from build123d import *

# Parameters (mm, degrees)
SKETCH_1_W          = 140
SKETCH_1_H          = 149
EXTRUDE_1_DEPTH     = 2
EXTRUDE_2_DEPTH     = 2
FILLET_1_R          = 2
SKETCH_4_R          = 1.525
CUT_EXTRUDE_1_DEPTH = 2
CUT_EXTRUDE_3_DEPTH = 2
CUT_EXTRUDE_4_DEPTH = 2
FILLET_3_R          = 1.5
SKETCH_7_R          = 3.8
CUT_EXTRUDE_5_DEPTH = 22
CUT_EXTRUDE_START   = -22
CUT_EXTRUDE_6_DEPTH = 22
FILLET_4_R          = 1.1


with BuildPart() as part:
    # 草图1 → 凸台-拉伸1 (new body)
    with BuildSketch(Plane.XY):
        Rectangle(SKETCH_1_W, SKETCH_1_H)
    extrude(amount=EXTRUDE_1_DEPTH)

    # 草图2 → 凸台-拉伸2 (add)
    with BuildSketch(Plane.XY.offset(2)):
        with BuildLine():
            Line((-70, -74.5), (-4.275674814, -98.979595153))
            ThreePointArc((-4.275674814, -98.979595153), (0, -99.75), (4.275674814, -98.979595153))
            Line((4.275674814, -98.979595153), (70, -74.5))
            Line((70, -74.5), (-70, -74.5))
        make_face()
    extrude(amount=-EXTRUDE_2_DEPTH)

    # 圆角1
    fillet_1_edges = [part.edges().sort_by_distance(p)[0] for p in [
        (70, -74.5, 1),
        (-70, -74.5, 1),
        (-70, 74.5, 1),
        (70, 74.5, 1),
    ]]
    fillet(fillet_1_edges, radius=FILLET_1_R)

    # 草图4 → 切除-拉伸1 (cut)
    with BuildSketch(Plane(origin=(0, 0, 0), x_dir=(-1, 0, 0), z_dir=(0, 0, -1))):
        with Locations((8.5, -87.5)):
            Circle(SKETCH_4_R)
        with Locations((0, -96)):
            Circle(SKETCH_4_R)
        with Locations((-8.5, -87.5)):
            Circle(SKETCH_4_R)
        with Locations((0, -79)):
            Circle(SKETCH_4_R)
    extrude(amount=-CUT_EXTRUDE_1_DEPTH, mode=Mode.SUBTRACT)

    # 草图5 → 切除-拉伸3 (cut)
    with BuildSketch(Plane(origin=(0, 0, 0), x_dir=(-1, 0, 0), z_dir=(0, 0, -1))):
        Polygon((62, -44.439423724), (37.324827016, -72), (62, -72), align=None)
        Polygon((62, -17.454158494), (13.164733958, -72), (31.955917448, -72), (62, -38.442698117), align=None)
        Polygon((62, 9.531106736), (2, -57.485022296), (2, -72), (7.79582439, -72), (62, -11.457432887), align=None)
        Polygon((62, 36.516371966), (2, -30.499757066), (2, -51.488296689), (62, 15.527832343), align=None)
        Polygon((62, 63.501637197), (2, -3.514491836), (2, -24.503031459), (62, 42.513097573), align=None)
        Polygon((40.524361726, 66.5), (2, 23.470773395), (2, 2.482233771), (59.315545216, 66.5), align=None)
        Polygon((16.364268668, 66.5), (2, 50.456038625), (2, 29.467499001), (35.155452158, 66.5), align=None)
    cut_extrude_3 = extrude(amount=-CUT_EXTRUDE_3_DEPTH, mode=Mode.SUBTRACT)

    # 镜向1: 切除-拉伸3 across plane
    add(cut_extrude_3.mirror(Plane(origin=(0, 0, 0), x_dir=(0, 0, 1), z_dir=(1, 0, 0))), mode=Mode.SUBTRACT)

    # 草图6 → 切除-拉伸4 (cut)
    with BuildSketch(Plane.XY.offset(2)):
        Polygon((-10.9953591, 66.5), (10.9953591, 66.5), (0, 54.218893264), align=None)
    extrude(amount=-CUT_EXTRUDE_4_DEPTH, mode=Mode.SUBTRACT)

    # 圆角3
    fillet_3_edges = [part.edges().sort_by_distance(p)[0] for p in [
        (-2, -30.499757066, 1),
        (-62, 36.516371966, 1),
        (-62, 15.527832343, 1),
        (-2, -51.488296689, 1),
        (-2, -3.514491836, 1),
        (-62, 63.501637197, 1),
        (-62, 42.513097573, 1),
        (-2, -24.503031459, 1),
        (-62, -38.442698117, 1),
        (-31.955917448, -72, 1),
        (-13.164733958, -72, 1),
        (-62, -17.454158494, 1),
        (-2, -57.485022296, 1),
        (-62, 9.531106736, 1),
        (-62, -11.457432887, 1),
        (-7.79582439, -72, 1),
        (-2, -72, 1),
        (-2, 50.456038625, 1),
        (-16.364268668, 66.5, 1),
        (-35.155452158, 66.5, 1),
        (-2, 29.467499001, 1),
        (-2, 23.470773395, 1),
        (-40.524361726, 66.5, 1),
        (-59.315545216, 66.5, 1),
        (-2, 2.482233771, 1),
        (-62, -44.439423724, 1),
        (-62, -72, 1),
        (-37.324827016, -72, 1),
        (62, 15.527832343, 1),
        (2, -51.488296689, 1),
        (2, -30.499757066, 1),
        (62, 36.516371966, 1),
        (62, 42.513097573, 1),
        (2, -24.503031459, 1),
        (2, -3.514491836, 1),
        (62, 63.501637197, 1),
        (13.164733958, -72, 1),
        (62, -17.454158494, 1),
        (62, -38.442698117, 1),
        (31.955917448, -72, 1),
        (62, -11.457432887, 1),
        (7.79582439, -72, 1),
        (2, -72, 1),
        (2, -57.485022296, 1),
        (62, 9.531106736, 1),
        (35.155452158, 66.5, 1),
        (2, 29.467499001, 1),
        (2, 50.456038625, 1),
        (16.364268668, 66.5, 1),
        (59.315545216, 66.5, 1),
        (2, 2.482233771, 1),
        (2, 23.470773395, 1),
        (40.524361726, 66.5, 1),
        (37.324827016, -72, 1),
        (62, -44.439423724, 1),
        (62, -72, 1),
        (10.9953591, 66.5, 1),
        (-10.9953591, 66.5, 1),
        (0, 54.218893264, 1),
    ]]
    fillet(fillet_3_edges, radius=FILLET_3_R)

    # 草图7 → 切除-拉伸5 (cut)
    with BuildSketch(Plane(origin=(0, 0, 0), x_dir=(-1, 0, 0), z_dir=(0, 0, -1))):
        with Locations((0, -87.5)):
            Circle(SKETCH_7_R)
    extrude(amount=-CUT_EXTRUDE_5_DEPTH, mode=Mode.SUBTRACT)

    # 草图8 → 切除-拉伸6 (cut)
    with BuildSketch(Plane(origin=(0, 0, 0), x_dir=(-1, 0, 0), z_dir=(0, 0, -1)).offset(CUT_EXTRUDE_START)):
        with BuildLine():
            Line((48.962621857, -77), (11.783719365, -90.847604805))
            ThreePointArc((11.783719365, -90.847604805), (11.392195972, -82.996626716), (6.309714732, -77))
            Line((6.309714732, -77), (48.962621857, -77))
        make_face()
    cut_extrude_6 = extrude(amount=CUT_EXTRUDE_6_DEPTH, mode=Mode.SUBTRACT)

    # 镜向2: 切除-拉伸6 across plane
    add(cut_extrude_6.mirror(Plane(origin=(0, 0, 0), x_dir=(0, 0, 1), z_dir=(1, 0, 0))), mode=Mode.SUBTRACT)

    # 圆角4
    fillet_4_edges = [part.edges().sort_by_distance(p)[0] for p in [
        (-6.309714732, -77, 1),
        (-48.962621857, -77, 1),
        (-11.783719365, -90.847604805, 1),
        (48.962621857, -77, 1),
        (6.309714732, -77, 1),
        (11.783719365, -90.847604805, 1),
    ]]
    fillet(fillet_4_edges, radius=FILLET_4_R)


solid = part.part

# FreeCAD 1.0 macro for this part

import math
import FreeCAD as App
import Part
import Sketcher
Q = App.Units.Quantity


def edges_at(feature, points):
    """Names of the edges that pass closest to the given points."""
    edges = feature.Shape.Edges
    near = lambda p: min(range(len(edges)), key=lambda i: edges[i].distToShape(Part.Vertex(*p))[0])
    return sorted({f"Edge{near(p) + 1}" for p in points})

doc = App.newDocument("Part")
body = doc.addObject("PartDesign::Body", "Body")

# Sketch on XY plane
sketch1 = body.newObject("Sketcher::SketchObject", "Sketch")
sketch1.AttachmentSupport = (doc.getObject("XY_Plane"), [""])
sketch1.MapMode = "FlatFace"
sketch1.addGeometry(Part.LineSegment(App.Vector(-70, 74, 0), App.Vector(-70, -74, 0)), False)
sketch1.addGeometry(Part.LineSegment(App.Vector(-70, -74, 0), App.Vector(70, -74, 0)), False)
sketch1.addGeometry(Part.LineSegment(App.Vector(70, -74, 0), App.Vector(70, 74, 0)), False)
sketch1.addGeometry(Part.LineSegment(App.Vector(70, 74, 0), App.Vector(-70, 74, 0)), False)
sketch1.addConstraint(Sketcher.Constraint("Coincident", 0, 2, 1, 1))
sketch1.addConstraint(Sketcher.Constraint("Coincident", 1, 2, 2, 1))
sketch1.addConstraint(Sketcher.Constraint("Coincident", 2, 2, 3, 1))
sketch1.addConstraint(Sketcher.Constraint("Coincident", 3, 2, 0, 1))
sketch1.addConstraint(Sketcher.Constraint("Vertical", 0))
sketch1.addConstraint(Sketcher.Constraint("Horizontal", 1))
sketch1.addConstraint(Sketcher.Constraint("Vertical", 2))
sketch1.addConstraint(Sketcher.Constraint("Horizontal", 3))
sketch1.addConstraint(Sketcher.Constraint("Symmetric", 0, 2, 2, 2, -1, 1))
sketch1.addConstraint(Sketcher.Constraint("DistanceX", 1, 1, 1, 2, Q("140 mm")))
sketch1.addConstraint(Sketcher.Constraint("DistanceY", 0, 2, 0, 1, Q("149 mm")))
pad1 = body.newObject("PartDesign::Pad", "Pad")
pad1.Profile = sketch1
pad1.Length = 2

# Sketch on XY plane
sketch2 = body.newObject("Sketcher::SketchObject", "Sketch001")
sketch2.AttachmentSupport = (doc.getObject("XY_Plane"), [""])
sketch2.MapMode = "FlatFace"
sketch2.AttachmentOffset = App.Placement(App.Vector(0, 0, 2), App.Rotation())
sketch2.addGeometry(Part.LineSegment(App.Vector(-70, -74, 0), App.Vector(-4, -99, 0)), False)
sketch2.addGeometry(Part.ArcOfCircle(Part.Circle(App.Vector(0, -88, 0), App.Vector(0, 0, 1), 12), math.radians(-110), math.radians(-70)), False)
sketch2.addGeometry(Part.LineSegment(App.Vector(4, -99, 0), App.Vector(70, -74, 0)), False)
sketch2.addGeometry(Part.LineSegment(App.Vector(70, -74, 0), App.Vector(-70, -74, 0)), False)
sketch2.addConstraint(Sketcher.Constraint("Tangent", 0, 2, 1, 1))
sketch2.addConstraint(Sketcher.Constraint("Tangent", 1, 2, 2, 1))
sketch2.addConstraint(Sketcher.Constraint("Coincident", 2, 2, 3, 1))
sketch2.addConstraint(Sketcher.Constraint("Coincident", 3, 2, 0, 1))
sketch2.addConstraint(Sketcher.Constraint("Horizontal", 3))
sketch2.addConstraint(Sketcher.Constraint("Symmetric", 0, 2, 1, 2, -2))
sketch2.addConstraint(Sketcher.Constraint("DistanceX", 3, 2, 3, 1, Q("140 mm")))
sketch2.addConstraint(Sketcher.Constraint("Radius", 1, Q("12.25 mm")))
sketch2.addConstraint(Sketcher.Constraint("DistanceY", 1, 3, 2, 2, Q("13 mm")))
sketch2.addConstraint(Sketcher.Constraint("DistanceY", 1, 3, -1, 1, Q("87.5 mm")))
pad2 = body.newObject("PartDesign::Pad", "Pad001")
pad2.Profile = sketch2
pad2.Length = 2
pad2.Reversed = True
doc.recompute()

fillet = body.newObject("PartDesign::Fillet", "Fillet")
fillet.Base = (pad2, edges_at(pad2, [
    (70, -74.5, 1),
    (-70, -74.5, 1),
    (-70, 74.5, 1),
    (70, 74.5, 1),
]))
fillet.Radius = 2

# Sketch on XY plane
sketch3 = body.newObject("Sketcher::SketchObject", "Sketch002")
sketch3.AttachmentSupport = (doc.getObject("XY_Plane"), [""])
sketch3.MapMode = "FlatFace"
sketch3.addGeometry(Part.Circle(App.Vector(-8.5, -87.5, 0), App.Vector(0, 0, 1), 1.5), False)
sketch3.addGeometry(Part.Circle(App.Vector(0, -96, 0), App.Vector(0, 0, 1), 1.5), False)
sketch3.addGeometry(Part.Circle(App.Vector(8.5, -87.5, 0), App.Vector(0, 0, 1), 1.5), False)
sketch3.addGeometry(Part.Circle(App.Vector(0, -79, 0), App.Vector(0, 0, 1), 1.5), False)
sketch3.addConstraint(Sketcher.Constraint("Equal", 0, 1))
sketch3.addConstraint(Sketcher.Constraint("Equal", 1, 2))
sketch3.addConstraint(Sketcher.Constraint("Equal", 2, 3))
sketch3.addConstraint(Sketcher.Constraint("Symmetric", 0, 3, 2, 3, -2))
sketch3.addConstraint(Sketcher.Constraint("PointOnObject", 1, 3, -2))
sketch3.addConstraint(Sketcher.Constraint("PointOnObject", 3, 3, -2))
sketch3.addConstraint(Sketcher.Constraint("Diameter", 0, Q("3.05 mm")))
sketch3.addConstraint(Sketcher.Constraint("DistanceY", 1, 3, -1, 1, Q("96 mm")))
sketch3.addConstraint(Sketcher.Constraint("DistanceY", 3, 3, -1, 1, Q("79 mm")))
sketch3.addConstraint(Sketcher.Constraint("DistanceX", 0, 3, 2, 3, Q("17 mm")))
sketch3.addConstraint(Sketcher.Constraint("DistanceY", 0, 3, -1, 1, Q("87.5 mm")))
pocket1 = body.newObject("PartDesign::Pocket", "Pocket")
pocket1.Profile = sketch3
pocket1.Length = 2
pocket1.Reversed = True

# Sketch on XY plane
sketch4 = body.newObject("Sketcher::SketchObject", "Sketch003")
sketch4.AttachmentSupport = (doc.getObject("XY_Plane"), [""])
sketch4.MapMode = "FlatFace"
sketch4.addGeometry(Part.LineSegment(App.Vector(-62, -44, 0), App.Vector(-37, -72, 0)), False)
sketch4.addGeometry(Part.LineSegment(App.Vector(-37, -72, 0), App.Vector(-62, -72, 0)), False)
sketch4.addGeometry(Part.LineSegment(App.Vector(-62, -72, 0), App.Vector(-62, -44, 0)), False)
sketch4.addGeometry(Part.LineSegment(App.Vector(-62, -17, 0), App.Vector(-13, -72, 0)), False)
sketch4.addGeometry(Part.LineSegment(App.Vector(-13, -72, 0), App.Vector(-32, -72, 0)), False)
sketch4.addGeometry(Part.LineSegment(App.Vector(-32, -72, 0), App.Vector(-62, -38, 0)), False)
sketch4.addGeometry(Part.LineSegment(App.Vector(-62, -38, 0), App.Vector(-62, -17, 0)), False)
sketch4.addGeometry(Part.LineSegment(App.Vector(-62, 10, 0), App.Vector(-2, -57, 0)), False)
sketch4.addGeometry(Part.LineSegment(App.Vector(-2, -57, 0), App.Vector(-2, -72, 0)), False)
sketch4.addGeometry(Part.LineSegment(App.Vector(-2, -72, 0), App.Vector(-8, -72, 0)), False)
sketch4.addGeometry(Part.LineSegment(App.Vector(-8, -72, 0), App.Vector(-62, -11, 0)), False)
sketch4.addGeometry(Part.LineSegment(App.Vector(-62, -11, 0), App.Vector(-62, 10, 0)), False)
sketch4.addGeometry(Part.LineSegment(App.Vector(-62, 37, 0), App.Vector(-2, -30, 0)), False)
sketch4.addGeometry(Part.LineSegment(App.Vector(-2, -30, 0), App.Vector(-2, -51, 0)), False)
sketch4.addGeometry(Part.LineSegment(App.Vector(-2, -51, 0), App.Vector(-62, 16, 0)), False)
sketch4.addGeometry(Part.LineSegment(App.Vector(-62, 16, 0), App.Vector(-62, 37, 0)), False)
sketch4.addGeometry(Part.LineSegment(App.Vector(-62, 64, 0), App.Vector(-2, -4, 0)), False)
sketch4.addGeometry(Part.LineSegment(App.Vector(-2, -4, 0), App.Vector(-2, -25, 0)), False)
sketch4.addGeometry(Part.LineSegment(App.Vector(-2, -25, 0), App.Vector(-62, 43, 0)), False)
sketch4.addGeometry(Part.LineSegment(App.Vector(-62, 43, 0), App.Vector(-62, 64, 0)), False)
sketch4.addGeometry(Part.LineSegment(App.Vector(-41, 66, 0), App.Vector(-2, 23, 0)), False)
sketch4.addGeometry(Part.LineSegment(App.Vector(-2, 23, 0), App.Vector(-2, 2, 0)), False)
sketch4.addGeometry(Part.LineSegment(App.Vector(-2, 2, 0), App.Vector(-59, 66, 0)), False)
sketch4.addGeometry(Part.LineSegment(App.Vector(-59, 66, 0), App.Vector(-41, 66, 0)), False)
sketch4.addGeometry(Part.LineSegment(App.Vector(-16, 66, 0), App.Vector(-2, 50, 0)), False)
sketch4.addGeometry(Part.LineSegment(App.Vector(-2, 50, 0), App.Vector(-2, 29, 0)), False)
sketch4.addGeometry(Part.LineSegment(App.Vector(-2, 29, 0), App.Vector(-35, 66, 0)), False)
sketch4.addGeometry(Part.LineSegment(App.Vector(-35, 66, 0), App.Vector(-16, 66, 0)), False)
sketch4.addConstraint(Sketcher.Constraint("Coincident", 0, 2, 1, 1))
sketch4.addConstraint(Sketcher.Constraint("Coincident", 1, 2, 2, 1))
sketch4.addConstraint(Sketcher.Constraint("Coincident", 2, 2, 0, 1))
sketch4.addConstraint(Sketcher.Constraint("Coincident", 3, 2, 4, 1))
sketch4.addConstraint(Sketcher.Constraint("Coincident", 4, 2, 5, 1))
sketch4.addConstraint(Sketcher.Constraint("Coincident", 5, 2, 6, 1))
sketch4.addConstraint(Sketcher.Constraint("Coincident", 6, 2, 3, 1))
sketch4.addConstraint(Sketcher.Constraint("Coincident", 7, 2, 8, 1))
sketch4.addConstraint(Sketcher.Constraint("Coincident", 8, 2, 9, 1))
sketch4.addConstraint(Sketcher.Constraint("Coincident", 9, 2, 10, 1))
sketch4.addConstraint(Sketcher.Constraint("Coincident", 10, 2, 11, 1))
sketch4.addConstraint(Sketcher.Constraint("Coincident", 11, 2, 7, 1))
sketch4.addConstraint(Sketcher.Constraint("Coincident", 12, 2, 13, 1))
sketch4.addConstraint(Sketcher.Constraint("Coincident", 13, 2, 14, 1))
sketch4.addConstraint(Sketcher.Constraint("Coincident", 14, 2, 15, 1))
sketch4.addConstraint(Sketcher.Constraint("Coincident", 15, 2, 12, 1))
sketch4.addConstraint(Sketcher.Constraint("Coincident", 16, 2, 17, 1))
sketch4.addConstraint(Sketcher.Constraint("Coincident", 17, 2, 18, 1))
sketch4.addConstraint(Sketcher.Constraint("Coincident", 18, 2, 19, 1))
sketch4.addConstraint(Sketcher.Constraint("Coincident", 19, 2, 16, 1))
sketch4.addConstraint(Sketcher.Constraint("Coincident", 20, 2, 21, 1))
sketch4.addConstraint(Sketcher.Constraint("Coincident", 21, 2, 22, 1))
sketch4.addConstraint(Sketcher.Constraint("Coincident", 22, 2, 23, 1))
sketch4.addConstraint(Sketcher.Constraint("Coincident", 23, 2, 20, 1))
sketch4.addConstraint(Sketcher.Constraint("Coincident", 24, 2, 25, 1))
sketch4.addConstraint(Sketcher.Constraint("Coincident", 25, 2, 26, 1))
sketch4.addConstraint(Sketcher.Constraint("Coincident", 26, 2, 27, 1))
sketch4.addConstraint(Sketcher.Constraint("Coincident", 27, 2, 24, 1))
sketch4.addConstraint(Sketcher.Constraint("Horizontal", 1))
sketch4.addConstraint(Sketcher.Constraint("Vertical", 2))
sketch4.addConstraint(Sketcher.Constraint("Horizontal", 4))
sketch4.addConstraint(Sketcher.Constraint("Vertical", 6))
sketch4.addConstraint(Sketcher.Constraint("Vertical", 8))
sketch4.addConstraint(Sketcher.Constraint("Horizontal", 9))
sketch4.addConstraint(Sketcher.Constraint("Vertical", 11))
sketch4.addConstraint(Sketcher.Constraint("Vertical", 13))
sketch4.addConstraint(Sketcher.Constraint("Vertical", 15))
sketch4.addConstraint(Sketcher.Constraint("Vertical", 17))
sketch4.addConstraint(Sketcher.Constraint("Vertical", 19))
sketch4.addConstraint(Sketcher.Constraint("Vertical", 21))
sketch4.addConstraint(Sketcher.Constraint("Horizontal", 23))
sketch4.addConstraint(Sketcher.Constraint("Vertical", 25))
sketch4.addConstraint(Sketcher.Constraint("Horizontal", 27))
sketch4.addConstraint(Sketcher.Constraint("Parallel", 0, 3))
sketch4.addConstraint(Sketcher.Constraint("Parallel", 3, 5))
sketch4.addConstraint(Sketcher.Constraint("Parallel", 5, 7))
sketch4.addConstraint(Sketcher.Constraint("Parallel", 7, 10))
sketch4.addConstraint(Sketcher.Constraint("Parallel", 10, 12))
sketch4.addConstraint(Sketcher.Constraint("Parallel", 12, 14))
sketch4.addConstraint(Sketcher.Constraint("Parallel", 14, 16))
sketch4.addConstraint(Sketcher.Constraint("Parallel", 16, 18))
sketch4.addConstraint(Sketcher.Constraint("Parallel", 18, 20))
sketch4.addConstraint(Sketcher.Constraint("Parallel", 20, 22))
sketch4.addConstraint(Sketcher.Constraint("Parallel", 22, 24))
sketch4.addConstraint(Sketcher.Constraint("Parallel", 24, 26))
sketch4.addConstraint(Sketcher.Constraint("Horizontal", 1, 2, 3, 2))
sketch4.addConstraint(Sketcher.Constraint("Horizontal", 4, 2, 8, 2))
sketch4.addConstraint(Sketcher.Constraint("Horizontal", 23, 2, 26, 2))
sketch4.addConstraint(Sketcher.Constraint("Vertical", 2, 2, 5, 2))
sketch4.addConstraint(Sketcher.Constraint("Vertical", 6, 2, 10, 2))
sketch4.addConstraint(Sketcher.Constraint("Vertical", 8, 2, 12, 2))
sketch4.addConstraint(Sketcher.Constraint("Vertical", 11, 2, 14, 2))
sketch4.addConstraint(Sketcher.Constraint("Vertical", 13, 2, 16, 2))
sketch4.addConstraint(Sketcher.Constraint("Vertical", 15, 2, 18, 2))
sketch4.addConstraint(Sketcher.Constraint("Vertical", 17, 2, 20, 2))
sketch4.addConstraint(Sketcher.Constraint("Vertical", 21, 2, 24, 2))
sketch4.addConstraint(Sketcher.Constraint("Equal", 4, 23))
sketch4.addConstraint(Sketcher.Constraint("Equal", 23, 27))
sketch4.addConstraint(Sketcher.Constraint("Equal", 6, 11))
sketch4.addConstraint(Sketcher.Constraint("Equal", 11, 13))
sketch4.addConstraint(Sketcher.Constraint("Equal", 15, 17))
sketch4.addConstraint(Sketcher.Constraint("DistanceY", 0, 2, -1, 1, Q("72 mm")))
sketch4.addConstraint(Sketcher.Constraint("DistanceX", 1, 2, -1, 1, Q("62 mm")))
sketch4.addConstraint(Sketcher.Constraint("DistanceX", 7, 2, -1, 1, Q("2 mm")))
sketch4.addConstraint(Sketcher.Constraint("DistanceY", -1, 1, 22, 2, Q("66.5 mm")))
sketch4.addConstraint(Sketcher.Constraint("Distance", 22, Q("85.926399 mm")))
sketch4.addConstraint(Sketcher.Constraint("DistanceY", 6, 1, 6, 2, Q("20.98854 mm")))
sketch4.addConstraint(Sketcher.Constraint("DistanceY", 5, 2, -1, 1, Q("38.442698 mm")))
sketch4.addConstraint(Sketcher.Constraint("DistanceY", -1, 1, 25, 2, Q("29.467499 mm")))
sketch4.addConstraint(Sketcher.Constraint("DistanceY", 7, 2, 2, 2, Q("13.045599 mm")))
sketch4.addConstraint(Sketcher.Constraint("DistanceY", 16, 2, 11, 2, Q("13.045599 mm")))
sketch4.addConstraint(Sketcher.Constraint("DistanceY", 20, 2, 15, 2, Q("13.045599 mm")))
sketch4.addConstraint(Sketcher.Constraint("Distance", 0, Q("36.99256 mm")))
sketch4.addConstraint(Sketcher.Constraint("Distance", 5, Q("45.04153 mm")))
pocket2 = body.newObject("PartDesign::Pocket", "Pocket001")
pocket2.Profile = sketch4
pocket2.Length = 2
pocket2.Reversed = True
doc.recompute()

mirrored = body.newObject("PartDesign::Mirrored", "Mirrored")
mirrored.Originals = [pocket2]
mirrored.MirrorPlane = (doc.getObject("YZ_Plane"), [""])
body.Tip = mirrored

# Sketch on XY plane
sketch5 = body.newObject("Sketcher::SketchObject", "Sketch004")
sketch5.AttachmentSupport = (doc.getObject("XY_Plane"), [""])
sketch5.MapMode = "FlatFace"
sketch5.AttachmentOffset = App.Placement(App.Vector(0, 0, 2), App.Rotation())
sketch5.addGeometry(Part.LineSegment(App.Vector(11, 66, 0), App.Vector(-11, 66, 0)), False)
sketch5.addGeometry(Part.LineSegment(App.Vector(-11, 66, 0), App.Vector(0, 54, 0)), False)
sketch5.addGeometry(Part.LineSegment(App.Vector(0, 54, 0), App.Vector(11, 66, 0)), False)
sketch5.addConstraint(Sketcher.Constraint("Coincident", 0, 2, 1, 1))
sketch5.addConstraint(Sketcher.Constraint("Coincident", 1, 2, 2, 1))
sketch5.addConstraint(Sketcher.Constraint("Coincident", 2, 2, 0, 1))
sketch5.addConstraint(Sketcher.Constraint("Horizontal", 0))
sketch5.addConstraint(Sketcher.Constraint("PointOnObject", 1, 2, -2))
sketch5.addConstraint(Sketcher.Constraint("Equal", 1, 2))
sketch5.addConstraint(Sketcher.Constraint("DistanceY", -1, 1, 0, 2, Q("66.5 mm")))
sketch5.addConstraint(Sketcher.Constraint("DistanceX", 0, 2, 0, 1, Q("21.990718 mm")))
sketch5.addConstraint(Sketcher.Constraint("Distance", 1, Q("16.484038 mm")))
pocket3 = body.newObject("PartDesign::Pocket", "Pocket002")
pocket3.Profile = sketch5
pocket3.Length = 2
doc.recompute()

fillet2 = body.newObject("PartDesign::Fillet", "Fillet001")
fillet2.Base = (pocket3, edges_at(pocket3, [
    (-2, -30.5, 1),
    (-62, 36.516, 1),
    (-62, 15.528, 1),
    (-2, -51.488, 1),
    (-2, -3.514, 1),
    (-62, 63.502, 1),
    (-62, 42.513, 1),
    (-2, -24.503, 1),
    (-62, -38.443, 1),
    (-31.956, -72, 1),
    (-13.165, -72, 1),
    (-62, -17.454, 1),
    (-2, -57.485, 1),
    (-62, 9.531, 1),
    (-62, -11.457, 1),
    (-7.796, -72, 1),
    (-2, -72, 1),
    (-2, 50.456, 1),
    (-16.364, 66.5, 1),
    (-35.155, 66.5, 1),
    (-2, 29.467, 1),
    (-2, 23.471, 1),
    (-40.524, 66.5, 1),
    (-59.316, 66.5, 1),
    (-2, 2.482, 1),
    (-62, -44.439, 1),
    (-62, -72, 1),
    (-37.325, -72, 1),
    (62, 15.528, 1),
    (2, -51.488, 1),
    (2, -30.5, 1),
    (62, 36.516, 1),
    (62, 42.513, 1),
    (2, -24.503, 1),
    (2, -3.514, 1),
    (62, 63.502, 1),
    (13.165, -72, 1),
    (62, -17.454, 1),
    (62, -38.443, 1),
    (31.956, -72, 1),
    (62, -11.457, 1),
    (7.796, -72, 1),
    (2, -72, 1),
    (2, -57.485, 1),
    (62, 9.531, 1),
    (35.155, 66.5, 1),
    (2, 29.467, 1),
    (2, 50.456, 1),
    (16.364, 66.5, 1),
    (59.316, 66.5, 1),
    (2, 2.482, 1),
    (2, 23.471, 1),
    (40.524, 66.5, 1),
    (37.325, -72, 1),
    (62, -44.439, 1),
    (62, -72, 1),
    (10.995, 66.5, 1),
    (-10.995, 66.5, 1),
    (0, 54.219, 1),
]))
fillet2.Radius = 1.5

# Sketch on XY plane
sketch6 = body.newObject("Sketcher::SketchObject", "Sketch005")
sketch6.AttachmentSupport = (doc.getObject("XY_Plane"), [""])
sketch6.MapMode = "FlatFace"
sketch6.addGeometry(Part.Circle(App.Vector(0, -87.5, 0), App.Vector(0, 0, 1), 3.8), False)
sketch6.addConstraint(Sketcher.Constraint("PointOnObject", 0, 3, -2))
sketch6.addConstraint(Sketcher.Constraint("Diameter", 0, Q("7.6 mm")))
sketch6.addConstraint(Sketcher.Constraint("DistanceY", 0, 3, -1, 1, Q("87.5 mm")))
pocket4 = body.newObject("PartDesign::Pocket", "Pocket003")
pocket4.Profile = sketch6
pocket4.Length = 22
pocket4.Reversed = True

# Sketch on XY plane
sketch7 = body.newObject("Sketcher::SketchObject", "Sketch006")
sketch7.AttachmentSupport = (doc.getObject("XY_Plane"), [""])
sketch7.MapMode = "FlatFace"
sketch7.AttachmentOffset = App.Placement(App.Vector(0, 0, 22), App.Rotation())
sketch7.addGeometry(Part.LineSegment(App.Vector(-12, -91, 0), App.Vector(-49, -77, 0)), False)
sketch7.addGeometry(Part.LineSegment(App.Vector(-49, -77, 0), App.Vector(-6, -77, 0)), False)
sketch7.addGeometry(Part.ArcOfCircle(Part.Circle(App.Vector(0, -88, 0), App.Vector(0, 0, 1), 12), math.radians(121), math.radians(196)), False)
sketch7.addConstraint(Sketcher.Constraint("Coincident", 0, 2, 1, 1))
sketch7.addConstraint(Sketcher.Constraint("Coincident", 1, 2, 2, 1))
sketch7.addConstraint(Sketcher.Constraint("Coincident", 2, 2, 0, 1))
sketch7.addConstraint(Sketcher.Constraint("Horizontal", 1))
sketch7.addConstraint(Sketcher.Constraint("PointOnObject", 2, 3, -2))
sketch7.addConstraint(Sketcher.Constraint("Radius", 2, Q("12.25 mm")))
sketch7.addConstraint(Sketcher.Constraint("DistanceY", 0, 2, -1, 1, Q("77 mm")))
sketch7.addConstraint(Sketcher.Constraint("DistanceY", 2, 3, -1, 1, Q("87.5 mm")))
sketch7.addConstraint(Sketcher.Constraint("Distance", 0, Q("39.674008 mm")))
sketch7.addConstraint(Sketcher.Constraint("DistanceX", 1, 1, 1, 2, Q("42.652907 mm")))
pocket5 = body.newObject("PartDesign::Pocket", "Pocket004")
pocket5.Profile = sketch7
pocket5.Length = 22
doc.recompute()

mirrored2 = body.newObject("PartDesign::Mirrored", "Mirrored001")
mirrored2.Originals = [pocket5]
mirrored2.MirrorPlane = (doc.getObject("YZ_Plane"), [""])
body.Tip = mirrored2
doc.recompute()

fillet3 = body.newObject("PartDesign::Fillet", "Fillet002")
fillet3.Base = (mirrored2, edges_at(mirrored2, [
    (-6.31, -77, 1),
    (-48.963, -77, 1),
    (-11.784, -90.848, 1),
    (48.963, -77, 1),
    (6.31, -77, 1),
    (11.784, -90.848, 1),
]))
fillet3.Radius = 1.1

doc.recompute()
